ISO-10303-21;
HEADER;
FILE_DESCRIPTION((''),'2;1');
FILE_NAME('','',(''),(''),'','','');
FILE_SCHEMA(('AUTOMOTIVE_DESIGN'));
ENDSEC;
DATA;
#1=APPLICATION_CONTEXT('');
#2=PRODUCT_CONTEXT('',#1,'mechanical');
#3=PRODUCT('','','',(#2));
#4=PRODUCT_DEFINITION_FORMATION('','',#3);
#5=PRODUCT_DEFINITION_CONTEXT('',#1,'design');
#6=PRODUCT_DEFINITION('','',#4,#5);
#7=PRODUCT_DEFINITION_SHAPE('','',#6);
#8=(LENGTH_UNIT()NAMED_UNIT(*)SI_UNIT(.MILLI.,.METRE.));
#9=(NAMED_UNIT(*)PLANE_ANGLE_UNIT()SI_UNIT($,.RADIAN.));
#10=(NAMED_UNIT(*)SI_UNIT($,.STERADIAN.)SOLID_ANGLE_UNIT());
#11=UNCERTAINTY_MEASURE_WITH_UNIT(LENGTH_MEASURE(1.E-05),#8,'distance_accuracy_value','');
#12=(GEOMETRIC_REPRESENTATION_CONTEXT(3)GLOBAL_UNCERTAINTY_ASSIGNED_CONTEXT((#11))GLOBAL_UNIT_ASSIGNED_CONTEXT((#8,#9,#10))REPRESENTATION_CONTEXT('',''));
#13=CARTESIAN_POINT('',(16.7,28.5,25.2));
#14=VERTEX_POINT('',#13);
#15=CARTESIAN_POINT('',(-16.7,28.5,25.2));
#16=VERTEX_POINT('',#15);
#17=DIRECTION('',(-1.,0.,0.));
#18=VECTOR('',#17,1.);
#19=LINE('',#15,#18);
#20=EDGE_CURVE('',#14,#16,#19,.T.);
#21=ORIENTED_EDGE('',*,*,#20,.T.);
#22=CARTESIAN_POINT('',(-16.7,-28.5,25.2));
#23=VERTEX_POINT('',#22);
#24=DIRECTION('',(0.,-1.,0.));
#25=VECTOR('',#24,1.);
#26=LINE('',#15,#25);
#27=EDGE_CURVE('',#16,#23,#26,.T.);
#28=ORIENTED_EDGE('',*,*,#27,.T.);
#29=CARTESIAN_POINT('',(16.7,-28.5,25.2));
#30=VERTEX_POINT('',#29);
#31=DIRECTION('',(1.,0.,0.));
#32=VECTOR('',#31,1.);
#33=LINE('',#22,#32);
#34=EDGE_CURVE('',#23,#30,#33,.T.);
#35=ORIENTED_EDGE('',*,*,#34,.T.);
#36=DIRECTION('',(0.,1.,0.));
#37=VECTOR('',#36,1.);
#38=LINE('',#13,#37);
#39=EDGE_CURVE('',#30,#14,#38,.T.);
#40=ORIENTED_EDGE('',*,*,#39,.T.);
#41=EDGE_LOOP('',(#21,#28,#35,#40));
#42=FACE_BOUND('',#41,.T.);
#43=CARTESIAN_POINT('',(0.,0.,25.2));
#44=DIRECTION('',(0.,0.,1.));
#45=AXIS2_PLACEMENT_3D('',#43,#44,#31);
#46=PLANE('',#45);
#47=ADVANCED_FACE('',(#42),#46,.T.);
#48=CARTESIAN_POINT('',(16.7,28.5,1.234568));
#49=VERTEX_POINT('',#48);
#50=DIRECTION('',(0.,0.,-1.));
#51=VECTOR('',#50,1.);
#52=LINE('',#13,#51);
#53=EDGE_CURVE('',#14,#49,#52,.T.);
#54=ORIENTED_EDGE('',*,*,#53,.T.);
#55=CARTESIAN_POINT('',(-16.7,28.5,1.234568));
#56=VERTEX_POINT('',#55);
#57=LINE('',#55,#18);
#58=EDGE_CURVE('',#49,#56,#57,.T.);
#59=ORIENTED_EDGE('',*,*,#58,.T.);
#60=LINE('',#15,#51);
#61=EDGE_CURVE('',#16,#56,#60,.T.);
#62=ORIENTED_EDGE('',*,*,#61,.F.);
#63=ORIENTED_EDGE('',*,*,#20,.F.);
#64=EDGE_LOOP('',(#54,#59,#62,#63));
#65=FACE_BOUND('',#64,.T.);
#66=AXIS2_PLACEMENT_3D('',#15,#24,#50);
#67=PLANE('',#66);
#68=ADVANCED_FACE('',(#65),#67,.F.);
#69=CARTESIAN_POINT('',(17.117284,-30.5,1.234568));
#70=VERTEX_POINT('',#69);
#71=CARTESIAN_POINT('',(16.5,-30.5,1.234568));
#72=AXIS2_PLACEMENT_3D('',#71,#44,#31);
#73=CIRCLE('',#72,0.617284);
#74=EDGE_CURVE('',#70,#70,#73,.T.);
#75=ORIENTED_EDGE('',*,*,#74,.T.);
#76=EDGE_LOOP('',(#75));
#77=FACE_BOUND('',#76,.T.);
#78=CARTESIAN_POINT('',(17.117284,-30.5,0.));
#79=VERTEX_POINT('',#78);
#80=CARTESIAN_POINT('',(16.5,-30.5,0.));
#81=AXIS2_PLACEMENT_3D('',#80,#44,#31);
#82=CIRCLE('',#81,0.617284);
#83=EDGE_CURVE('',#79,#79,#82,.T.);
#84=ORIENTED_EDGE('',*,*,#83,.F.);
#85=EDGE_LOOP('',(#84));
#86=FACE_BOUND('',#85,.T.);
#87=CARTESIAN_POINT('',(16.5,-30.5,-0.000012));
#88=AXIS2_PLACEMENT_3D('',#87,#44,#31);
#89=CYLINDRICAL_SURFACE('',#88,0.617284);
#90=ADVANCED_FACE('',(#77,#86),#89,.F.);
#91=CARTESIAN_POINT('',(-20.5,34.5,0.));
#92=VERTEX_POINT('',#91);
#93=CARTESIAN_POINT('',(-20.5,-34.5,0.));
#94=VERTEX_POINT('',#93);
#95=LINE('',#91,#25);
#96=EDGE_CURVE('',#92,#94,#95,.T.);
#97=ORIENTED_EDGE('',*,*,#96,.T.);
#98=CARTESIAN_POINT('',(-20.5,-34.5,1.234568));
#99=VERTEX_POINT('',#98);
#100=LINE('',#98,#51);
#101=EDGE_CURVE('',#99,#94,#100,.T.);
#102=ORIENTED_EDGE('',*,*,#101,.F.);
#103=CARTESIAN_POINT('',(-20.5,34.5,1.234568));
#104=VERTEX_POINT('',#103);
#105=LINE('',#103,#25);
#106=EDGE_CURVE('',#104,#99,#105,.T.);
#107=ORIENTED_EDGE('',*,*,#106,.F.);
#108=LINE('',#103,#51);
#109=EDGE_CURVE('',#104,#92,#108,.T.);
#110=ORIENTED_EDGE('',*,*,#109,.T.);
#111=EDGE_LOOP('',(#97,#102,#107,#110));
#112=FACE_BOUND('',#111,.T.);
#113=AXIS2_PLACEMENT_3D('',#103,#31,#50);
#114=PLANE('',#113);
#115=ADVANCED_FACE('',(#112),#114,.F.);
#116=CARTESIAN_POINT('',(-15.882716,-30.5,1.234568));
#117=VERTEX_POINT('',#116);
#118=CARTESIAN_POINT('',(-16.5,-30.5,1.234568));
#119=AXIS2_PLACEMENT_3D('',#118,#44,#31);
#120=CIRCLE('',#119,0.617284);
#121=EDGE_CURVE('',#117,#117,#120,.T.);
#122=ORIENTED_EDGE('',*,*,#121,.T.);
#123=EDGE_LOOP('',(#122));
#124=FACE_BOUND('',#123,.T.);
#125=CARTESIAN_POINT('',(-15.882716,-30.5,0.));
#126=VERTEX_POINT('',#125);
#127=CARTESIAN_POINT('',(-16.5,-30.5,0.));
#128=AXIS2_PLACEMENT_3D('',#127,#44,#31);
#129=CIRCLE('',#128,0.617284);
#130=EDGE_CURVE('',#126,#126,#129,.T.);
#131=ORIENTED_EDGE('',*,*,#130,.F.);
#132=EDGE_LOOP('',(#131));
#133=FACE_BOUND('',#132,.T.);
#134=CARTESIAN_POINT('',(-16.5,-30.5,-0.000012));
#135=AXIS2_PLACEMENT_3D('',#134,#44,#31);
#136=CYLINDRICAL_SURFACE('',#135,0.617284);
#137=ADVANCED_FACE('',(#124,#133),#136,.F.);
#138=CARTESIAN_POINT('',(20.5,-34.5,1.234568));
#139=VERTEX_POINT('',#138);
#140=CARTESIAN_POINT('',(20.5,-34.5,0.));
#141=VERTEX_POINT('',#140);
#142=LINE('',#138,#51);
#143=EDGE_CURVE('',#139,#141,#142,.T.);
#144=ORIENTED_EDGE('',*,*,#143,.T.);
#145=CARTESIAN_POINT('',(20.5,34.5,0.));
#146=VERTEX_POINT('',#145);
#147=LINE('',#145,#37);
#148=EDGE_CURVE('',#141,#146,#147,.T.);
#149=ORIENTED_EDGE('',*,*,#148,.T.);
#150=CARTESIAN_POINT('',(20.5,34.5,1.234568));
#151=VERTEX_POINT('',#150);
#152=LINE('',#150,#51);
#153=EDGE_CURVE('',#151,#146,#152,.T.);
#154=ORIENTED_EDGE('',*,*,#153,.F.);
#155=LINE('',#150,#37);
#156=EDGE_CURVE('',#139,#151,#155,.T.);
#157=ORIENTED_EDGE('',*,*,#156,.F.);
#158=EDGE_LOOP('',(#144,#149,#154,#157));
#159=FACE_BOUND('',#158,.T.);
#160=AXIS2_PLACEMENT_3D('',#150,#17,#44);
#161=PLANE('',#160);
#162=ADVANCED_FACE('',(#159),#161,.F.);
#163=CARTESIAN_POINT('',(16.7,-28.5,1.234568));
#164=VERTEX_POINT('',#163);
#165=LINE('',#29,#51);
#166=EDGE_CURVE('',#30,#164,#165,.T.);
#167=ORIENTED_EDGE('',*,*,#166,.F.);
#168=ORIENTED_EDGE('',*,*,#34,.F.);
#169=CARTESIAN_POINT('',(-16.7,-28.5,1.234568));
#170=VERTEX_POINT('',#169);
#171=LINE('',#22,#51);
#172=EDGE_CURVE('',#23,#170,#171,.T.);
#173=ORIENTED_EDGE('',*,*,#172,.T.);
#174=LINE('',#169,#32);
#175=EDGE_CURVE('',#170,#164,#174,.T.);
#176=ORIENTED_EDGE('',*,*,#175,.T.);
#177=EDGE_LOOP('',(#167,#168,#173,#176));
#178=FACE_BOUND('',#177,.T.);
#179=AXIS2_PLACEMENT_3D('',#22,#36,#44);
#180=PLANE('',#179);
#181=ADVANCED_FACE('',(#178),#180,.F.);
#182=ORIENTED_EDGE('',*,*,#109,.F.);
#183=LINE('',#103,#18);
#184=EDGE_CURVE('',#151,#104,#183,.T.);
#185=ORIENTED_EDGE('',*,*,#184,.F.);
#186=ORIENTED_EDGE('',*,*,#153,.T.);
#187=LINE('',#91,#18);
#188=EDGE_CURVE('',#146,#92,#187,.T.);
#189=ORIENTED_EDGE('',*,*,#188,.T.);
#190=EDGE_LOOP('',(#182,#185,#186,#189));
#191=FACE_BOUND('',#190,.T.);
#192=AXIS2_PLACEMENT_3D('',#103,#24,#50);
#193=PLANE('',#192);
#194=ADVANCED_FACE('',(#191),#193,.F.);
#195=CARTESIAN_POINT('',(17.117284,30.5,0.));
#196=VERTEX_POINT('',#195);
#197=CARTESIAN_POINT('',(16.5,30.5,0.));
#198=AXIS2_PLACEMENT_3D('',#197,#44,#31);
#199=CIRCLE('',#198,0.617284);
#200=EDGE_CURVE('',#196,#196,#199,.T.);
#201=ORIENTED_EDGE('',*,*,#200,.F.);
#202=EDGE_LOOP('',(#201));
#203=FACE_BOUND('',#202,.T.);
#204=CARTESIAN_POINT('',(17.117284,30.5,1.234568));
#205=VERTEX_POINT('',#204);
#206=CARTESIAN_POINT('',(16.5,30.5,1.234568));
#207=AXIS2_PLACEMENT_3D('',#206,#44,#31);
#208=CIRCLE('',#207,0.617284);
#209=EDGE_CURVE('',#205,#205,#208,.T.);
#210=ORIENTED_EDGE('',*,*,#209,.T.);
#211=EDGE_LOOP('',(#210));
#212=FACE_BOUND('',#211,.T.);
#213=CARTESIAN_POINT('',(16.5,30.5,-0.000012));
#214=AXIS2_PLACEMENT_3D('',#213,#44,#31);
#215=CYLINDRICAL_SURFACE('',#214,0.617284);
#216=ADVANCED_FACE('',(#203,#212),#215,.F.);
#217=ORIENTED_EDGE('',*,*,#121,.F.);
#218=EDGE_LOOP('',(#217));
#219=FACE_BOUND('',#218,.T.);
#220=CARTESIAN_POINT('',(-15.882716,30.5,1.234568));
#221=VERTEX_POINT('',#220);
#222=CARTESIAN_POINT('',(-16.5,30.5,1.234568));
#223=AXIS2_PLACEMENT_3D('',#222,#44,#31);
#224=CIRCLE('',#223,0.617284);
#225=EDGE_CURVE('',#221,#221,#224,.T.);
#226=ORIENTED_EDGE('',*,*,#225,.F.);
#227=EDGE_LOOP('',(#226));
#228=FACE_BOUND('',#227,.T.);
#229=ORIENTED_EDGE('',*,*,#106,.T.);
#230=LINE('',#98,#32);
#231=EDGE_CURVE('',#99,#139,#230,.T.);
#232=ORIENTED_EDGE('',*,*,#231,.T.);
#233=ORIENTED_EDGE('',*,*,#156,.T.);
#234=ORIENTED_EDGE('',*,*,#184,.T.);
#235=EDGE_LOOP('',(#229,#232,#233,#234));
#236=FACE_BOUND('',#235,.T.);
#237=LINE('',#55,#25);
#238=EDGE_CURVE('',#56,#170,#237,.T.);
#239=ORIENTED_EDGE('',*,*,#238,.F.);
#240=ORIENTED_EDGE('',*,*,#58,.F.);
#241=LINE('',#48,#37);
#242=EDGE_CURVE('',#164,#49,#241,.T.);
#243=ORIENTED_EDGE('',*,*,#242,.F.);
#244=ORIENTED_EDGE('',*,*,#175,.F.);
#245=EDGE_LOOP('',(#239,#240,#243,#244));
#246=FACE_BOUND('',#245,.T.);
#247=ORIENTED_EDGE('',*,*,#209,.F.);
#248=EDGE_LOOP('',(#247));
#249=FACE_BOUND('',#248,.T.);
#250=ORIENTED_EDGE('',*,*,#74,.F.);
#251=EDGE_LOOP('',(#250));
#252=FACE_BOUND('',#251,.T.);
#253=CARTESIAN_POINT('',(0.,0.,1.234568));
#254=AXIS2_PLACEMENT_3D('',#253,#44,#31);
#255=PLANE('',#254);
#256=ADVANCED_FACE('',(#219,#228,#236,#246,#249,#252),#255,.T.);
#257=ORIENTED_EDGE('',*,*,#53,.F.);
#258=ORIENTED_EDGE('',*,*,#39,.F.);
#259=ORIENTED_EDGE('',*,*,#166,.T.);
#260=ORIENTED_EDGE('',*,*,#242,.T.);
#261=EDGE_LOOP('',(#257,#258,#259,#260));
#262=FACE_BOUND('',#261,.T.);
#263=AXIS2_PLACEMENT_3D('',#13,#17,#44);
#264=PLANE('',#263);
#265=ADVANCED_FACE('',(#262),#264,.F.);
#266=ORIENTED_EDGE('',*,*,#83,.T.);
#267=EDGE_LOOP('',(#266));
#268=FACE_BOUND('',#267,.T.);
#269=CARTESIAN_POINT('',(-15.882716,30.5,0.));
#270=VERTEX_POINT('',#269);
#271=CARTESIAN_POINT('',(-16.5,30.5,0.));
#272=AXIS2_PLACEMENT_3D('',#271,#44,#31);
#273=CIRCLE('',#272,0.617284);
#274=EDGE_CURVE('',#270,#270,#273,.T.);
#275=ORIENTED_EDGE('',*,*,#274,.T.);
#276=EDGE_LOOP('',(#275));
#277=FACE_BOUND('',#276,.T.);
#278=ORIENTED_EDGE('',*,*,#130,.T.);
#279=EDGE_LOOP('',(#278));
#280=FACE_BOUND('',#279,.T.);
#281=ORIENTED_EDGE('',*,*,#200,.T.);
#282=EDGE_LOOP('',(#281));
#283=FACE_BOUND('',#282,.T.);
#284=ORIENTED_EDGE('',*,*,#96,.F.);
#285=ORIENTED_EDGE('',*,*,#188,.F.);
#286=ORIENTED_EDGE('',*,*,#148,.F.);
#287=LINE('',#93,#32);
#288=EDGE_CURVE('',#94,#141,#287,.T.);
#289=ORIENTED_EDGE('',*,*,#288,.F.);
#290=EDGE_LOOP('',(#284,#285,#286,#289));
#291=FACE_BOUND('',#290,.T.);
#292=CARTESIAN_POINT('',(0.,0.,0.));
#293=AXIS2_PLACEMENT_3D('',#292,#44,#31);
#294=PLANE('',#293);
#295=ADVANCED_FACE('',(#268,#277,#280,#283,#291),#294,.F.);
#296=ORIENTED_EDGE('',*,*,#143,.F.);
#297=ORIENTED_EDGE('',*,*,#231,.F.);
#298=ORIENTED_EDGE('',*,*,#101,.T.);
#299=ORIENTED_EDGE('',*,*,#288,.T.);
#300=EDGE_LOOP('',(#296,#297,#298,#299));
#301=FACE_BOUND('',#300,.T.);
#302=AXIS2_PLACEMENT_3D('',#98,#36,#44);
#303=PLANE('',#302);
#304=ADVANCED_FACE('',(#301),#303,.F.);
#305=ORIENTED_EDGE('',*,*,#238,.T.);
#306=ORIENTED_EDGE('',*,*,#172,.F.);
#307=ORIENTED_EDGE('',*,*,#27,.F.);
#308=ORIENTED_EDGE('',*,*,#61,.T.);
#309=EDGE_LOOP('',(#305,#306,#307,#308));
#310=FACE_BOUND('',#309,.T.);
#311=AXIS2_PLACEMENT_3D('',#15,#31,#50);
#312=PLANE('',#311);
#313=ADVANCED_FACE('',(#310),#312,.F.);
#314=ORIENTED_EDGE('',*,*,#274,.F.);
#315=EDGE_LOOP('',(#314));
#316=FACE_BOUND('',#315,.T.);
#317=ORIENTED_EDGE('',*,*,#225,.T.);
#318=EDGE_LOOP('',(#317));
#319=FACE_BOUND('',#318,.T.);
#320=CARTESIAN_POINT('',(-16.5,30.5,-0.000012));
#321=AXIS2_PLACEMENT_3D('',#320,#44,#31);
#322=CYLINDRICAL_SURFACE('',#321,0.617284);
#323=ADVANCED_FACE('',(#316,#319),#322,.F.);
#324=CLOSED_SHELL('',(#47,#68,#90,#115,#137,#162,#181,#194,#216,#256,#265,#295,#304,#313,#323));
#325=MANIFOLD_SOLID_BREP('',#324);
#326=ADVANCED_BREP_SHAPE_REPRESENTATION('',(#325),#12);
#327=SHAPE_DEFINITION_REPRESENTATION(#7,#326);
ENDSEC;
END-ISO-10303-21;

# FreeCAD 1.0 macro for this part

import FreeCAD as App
import Part
import Sketcher

V = App.Vector

doc = App.newDocument("Part")
params = doc.addObject("Spreadsheet::Sheet", "Params")
for row, (alias, value) in enumerate([
    ("sketch1_height", "57 mm"),
    ("sketch1_width", "33.4 mm"),
    ("pad1_length", "25.2 mm"),
    ("sketch2_width", "41 mm"),
    ("sketch2_height", "69 mm"),
    ("pad2_length", "1.234568 mm"),
], start=1):
    params.set(f"A{row}", alias)
    params.set(f"B{row}", "=" + value)
    params.setAlias(f"B{row}", alias)

body = doc.addObject("PartDesign::Body", "Body")

sketch1 = body.newObject("Sketcher::SketchObject", "Sketch")
sketch1.AttachmentSupport = (doc.getObject("XY_Plane"), [""])
sketch1.MapMode = "FlatFace"
sketch1.addGeometry(Part.LineSegment(V(-17, 28, 0), V(-17, -28, 0)), False)
sketch1.addGeometry(Part.LineSegment(V(-17, -28, 0), V(17, -28, 0)), False)
sketch1.addGeometry(Part.LineSegment(V(17, -28, 0), V(17, 28, 0)), False)
sketch1.addGeometry(Part.LineSegment(V(17, 28, 0), V(-17, 28, 0)), False)
sketch1.addConstraint(Sketcher.Constraint("Coincident", 0, 2, 1, 1))
sketch1.addConstraint(Sketcher.Constraint("Coincident", 1, 2, 2, 1))
sketch1.addConstraint(Sketcher.Constraint("Coincident", 2, 2, 3, 1))
sketch1.addConstraint(Sketcher.Constraint("Coincident", 3, 2, 0, 1))
sketch1.addConstraint(Sketcher.Constraint("Vertical", 0))
sketch1.addConstraint(Sketcher.Constraint("Horizontal", 1))
sketch1.addConstraint(Sketcher.Constraint("Vertical", 2))
sketch1.addConstraint(Sketcher.Constraint("Horizontal", 3))
sketch1.addConstraint(Sketcher.Constraint("Symmetric", 0, 2, 2, 2, -1, 1))
sketch1.addConstraint(Sketcher.Constraint("DistanceY", 0, 2, 0, 1, 57.0))
sketch1.addConstraint(Sketcher.Constraint("DistanceX", 1, 1, 1, 2, 33.4))
sketch1.setExpression("Constraints[9]", "Params.sketch1_height")
sketch1.setExpression("Constraints[10]", "Params.sketch1_width")
pad1 = body.newObject("PartDesign::Pad", "Pad")
pad1.Profile = sketch1
pad1.setExpression("Length", "Params.pad1_length")

sketch2 = body.newObject("Sketcher::SketchObject", "Sketch001")
sketch2.AttachmentSupport = (doc.getObject("XY_Plane"), [""])
sketch2.MapMode = "FlatFace"
sketch2.addGeometry(Part.LineSegment(V(-20, 34, 0), V(-20, -34, 0)), False)
sketch2.addGeometry(Part.LineSegment(V(-20, -34, 0), V(20, -34, 0)), False)
sketch2.addGeometry(Part.LineSegment(V(20, -34, 0), V(20, 34, 0)), False)
sketch2.addGeometry(Part.LineSegment(V(20, 34, 0), V(-20, 34, 0)), False)
sketch2.addConstraint(Sketcher.Constraint("Coincident", 0, 2, 1, 1))
sketch2.addConstraint(Sketcher.Constraint("Coincident", 1, 2, 2, 1))
sketch2.addConstraint(Sketcher.Constraint("Coincident", 2, 2, 3, 1))
sketch2.addConstraint(Sketcher.Constraint("Coincident", 3, 2, 0, 1))
sketch2.addConstraint(Sketcher.Constraint("Vertical", 0))
sketch2.addConstraint(Sketcher.Constraint("Horizontal", 1))
sketch2.addConstraint(Sketcher.Constraint("Vertical", 2))
sketch2.addConstraint(Sketcher.Constraint("Horizontal", 3))
sketch2.addConstraint(Sketcher.Constraint("Symmetric", 0, 2, 2, 2, -1, 1))
sketch2.addConstraint(Sketcher.Constraint("DistanceX", 1, 1, 1, 2, 41.0))
sketch2.addConstraint(Sketcher.Constraint("DistanceY", 0, 2, 0, 1, 69.0))
sketch2.setExpression("Constraints[9]", "Params.sketch2_width")
sketch2.setExpression("Constraints[10]", "Params.sketch2_height")
pad2 = body.newObject("PartDesign::Pad", "Pad001")
pad2.Profile = sketch2
pad2.setExpression("Length", "Params.pad2_length")

sketch3 = body.newObject("Sketcher::SketchObject", "Sketch002")
sketch3.AttachmentSupport = (doc.getObject("XY_Plane"), [""])
sketch3.MapMode = "FlatFace"
sketch3.addGeometry(Part.Circle(V(16.5, -30.5, 0), V(0, 0, 1), 0.6), False)
sketch3.addGeometry(Part.Circle(V(16.5, 30.5, 0), V(0, 0, 1), 0.6), False)
sketch3.addGeometry(Part.Circle(V(-16.5, -30.5, 0), V(0, 0, 1), 0.6), False)
sketch3.addGeometry(Part.Circle(V(-16.5, 30.5, 0), V(0, 0, 1), 0.6), False)
sketch3.addConstraint(Sketcher.Constraint("Equal", 0, 1))
sketch3.addConstraint(Sketcher.Constraint("Equal", 1, 2))
sketch3.addConstraint(Sketcher.Constraint("Equal", 2, 3))
sketch3.addConstraint(Sketcher.Constraint("Symmetric", 1, 3, 2, 3, -1, 1))
sketch3.addConstraint(Sketcher.Constraint("Symmetric", 0, 3, 3, 3, -1, 1))
sketch3.addConstraint(Sketcher.Constraint("Symmetric", 0, 3, 2, 3, -2))
sketch3.addConstraint(Sketcher.Constraint("DistanceY", 0, 3, 1, 3, 61.0))
sketch3.addConstraint(Sketcher.Constraint("DistanceX", 2, 3, 0, 3, 33.0))
sketch3.addConstraint(Sketcher.Constraint("Diameter", 0, 1.234568))
pocket1 = body.newObject("PartDesign::Pocket", "Pocket")
pocket1.Profile = sketch3
pocket1.Type = "ThroughAll"
pocket1.Midplane = True

doc.recompute()
